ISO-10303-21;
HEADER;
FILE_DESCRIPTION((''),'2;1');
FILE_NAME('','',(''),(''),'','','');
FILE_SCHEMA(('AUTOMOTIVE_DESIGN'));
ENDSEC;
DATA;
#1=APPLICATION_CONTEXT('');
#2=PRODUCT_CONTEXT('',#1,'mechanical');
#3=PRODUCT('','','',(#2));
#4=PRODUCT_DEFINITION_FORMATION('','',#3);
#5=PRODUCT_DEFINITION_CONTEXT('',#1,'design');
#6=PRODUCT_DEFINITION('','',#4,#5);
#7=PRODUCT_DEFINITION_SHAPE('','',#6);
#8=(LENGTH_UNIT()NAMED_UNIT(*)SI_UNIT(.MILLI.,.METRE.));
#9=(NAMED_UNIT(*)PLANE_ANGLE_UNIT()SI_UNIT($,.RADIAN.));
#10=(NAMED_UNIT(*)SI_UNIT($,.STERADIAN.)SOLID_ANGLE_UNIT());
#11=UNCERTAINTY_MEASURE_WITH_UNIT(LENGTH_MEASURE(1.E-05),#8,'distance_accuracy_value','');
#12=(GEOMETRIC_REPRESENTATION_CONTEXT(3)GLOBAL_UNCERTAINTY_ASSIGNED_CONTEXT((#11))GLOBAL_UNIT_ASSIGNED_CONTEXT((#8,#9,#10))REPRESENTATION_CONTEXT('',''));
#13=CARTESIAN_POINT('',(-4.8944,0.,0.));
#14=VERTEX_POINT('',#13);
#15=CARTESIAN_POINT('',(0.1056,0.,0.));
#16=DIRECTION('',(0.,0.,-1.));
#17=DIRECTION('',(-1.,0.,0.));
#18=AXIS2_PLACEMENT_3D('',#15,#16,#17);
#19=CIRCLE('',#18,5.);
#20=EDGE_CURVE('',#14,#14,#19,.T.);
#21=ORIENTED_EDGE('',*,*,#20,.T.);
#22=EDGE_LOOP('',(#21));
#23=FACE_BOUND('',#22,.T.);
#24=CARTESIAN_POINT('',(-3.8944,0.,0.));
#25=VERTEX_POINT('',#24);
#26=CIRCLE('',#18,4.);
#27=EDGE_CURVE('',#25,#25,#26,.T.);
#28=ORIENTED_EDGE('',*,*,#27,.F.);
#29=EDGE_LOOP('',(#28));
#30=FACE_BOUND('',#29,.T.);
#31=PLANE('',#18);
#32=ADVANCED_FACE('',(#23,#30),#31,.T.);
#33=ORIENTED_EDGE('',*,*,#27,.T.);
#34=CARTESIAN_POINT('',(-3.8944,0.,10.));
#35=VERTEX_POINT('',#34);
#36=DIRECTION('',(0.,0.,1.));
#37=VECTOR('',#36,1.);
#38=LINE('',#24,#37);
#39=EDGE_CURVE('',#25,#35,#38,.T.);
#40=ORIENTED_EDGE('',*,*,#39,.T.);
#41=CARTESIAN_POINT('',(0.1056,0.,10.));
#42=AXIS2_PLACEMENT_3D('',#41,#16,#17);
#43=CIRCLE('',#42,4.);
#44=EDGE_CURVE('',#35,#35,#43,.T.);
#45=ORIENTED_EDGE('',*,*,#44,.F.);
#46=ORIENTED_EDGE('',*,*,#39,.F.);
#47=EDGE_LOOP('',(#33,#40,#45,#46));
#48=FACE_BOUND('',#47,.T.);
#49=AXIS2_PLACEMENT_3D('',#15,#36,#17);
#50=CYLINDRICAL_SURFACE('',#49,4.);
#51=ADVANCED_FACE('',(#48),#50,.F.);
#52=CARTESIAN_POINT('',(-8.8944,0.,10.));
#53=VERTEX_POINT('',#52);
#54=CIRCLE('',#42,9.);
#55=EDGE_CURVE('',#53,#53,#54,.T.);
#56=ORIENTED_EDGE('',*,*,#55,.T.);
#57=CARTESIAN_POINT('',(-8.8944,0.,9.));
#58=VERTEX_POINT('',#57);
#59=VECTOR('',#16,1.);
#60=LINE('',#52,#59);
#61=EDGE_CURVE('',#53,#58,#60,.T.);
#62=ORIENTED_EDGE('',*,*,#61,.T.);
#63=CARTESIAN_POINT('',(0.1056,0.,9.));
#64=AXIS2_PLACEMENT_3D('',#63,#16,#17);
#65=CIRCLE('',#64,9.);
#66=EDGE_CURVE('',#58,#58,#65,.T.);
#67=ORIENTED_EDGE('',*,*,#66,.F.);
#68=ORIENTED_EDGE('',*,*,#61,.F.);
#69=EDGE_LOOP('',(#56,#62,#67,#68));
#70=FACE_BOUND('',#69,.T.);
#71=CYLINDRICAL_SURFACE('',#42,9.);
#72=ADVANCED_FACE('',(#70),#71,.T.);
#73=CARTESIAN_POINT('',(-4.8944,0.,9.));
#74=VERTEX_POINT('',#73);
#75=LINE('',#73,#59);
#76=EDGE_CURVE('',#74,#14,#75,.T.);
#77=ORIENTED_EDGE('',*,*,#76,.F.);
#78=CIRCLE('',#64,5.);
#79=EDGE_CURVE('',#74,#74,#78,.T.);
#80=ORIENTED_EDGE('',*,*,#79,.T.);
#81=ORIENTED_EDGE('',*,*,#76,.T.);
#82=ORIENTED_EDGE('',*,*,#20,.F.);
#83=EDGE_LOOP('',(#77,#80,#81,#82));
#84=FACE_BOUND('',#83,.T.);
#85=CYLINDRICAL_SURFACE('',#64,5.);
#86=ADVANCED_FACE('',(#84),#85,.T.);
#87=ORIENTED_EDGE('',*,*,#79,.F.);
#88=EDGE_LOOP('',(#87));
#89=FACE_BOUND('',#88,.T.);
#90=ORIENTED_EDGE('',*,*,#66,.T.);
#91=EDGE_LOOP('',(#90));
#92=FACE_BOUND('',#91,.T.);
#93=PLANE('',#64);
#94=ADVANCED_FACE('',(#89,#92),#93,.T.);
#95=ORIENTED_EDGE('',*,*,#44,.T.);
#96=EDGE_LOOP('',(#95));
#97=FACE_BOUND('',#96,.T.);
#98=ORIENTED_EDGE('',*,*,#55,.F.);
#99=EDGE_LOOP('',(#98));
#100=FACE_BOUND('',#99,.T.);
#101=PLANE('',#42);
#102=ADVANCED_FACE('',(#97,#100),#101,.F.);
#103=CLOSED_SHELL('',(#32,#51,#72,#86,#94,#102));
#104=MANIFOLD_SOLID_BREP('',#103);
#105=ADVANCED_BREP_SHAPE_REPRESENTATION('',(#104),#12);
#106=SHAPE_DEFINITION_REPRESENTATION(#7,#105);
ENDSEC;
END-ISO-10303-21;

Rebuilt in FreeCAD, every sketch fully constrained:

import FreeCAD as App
import Part
import Sketcher
from FreeCAD import Vector

doc = App.newDocument("Part")
params = doc.addObject("Spreadsheet::Sheet", "Params")
for row, (alias, value) in enumerate([
    ("sketch1_width", "1 mm"),
    ("sketch1_width2", "5 mm"),
    ("sketch1_height", "10 mm"),
    ("revolution_angle", "360 deg"),
], start=1):
    params.set(f"A{row}", alias)
    params.set(f"B{row}", "=" + value)
    params.setAlias(f"B{row}", alias)

body = doc.addObject("PartDesign::Body", "Body")

sketch1 = body.newObject("Sketcher::SketchObject", "Sketch")
sketch1.AttachmentSupport = (doc.getObject("XZ_Plane"), [""])
sketch1.MapMode = "FlatFace"
sketch1.addGeometry([
    Part.LineSegment(Vector(-4.8944, 0, 0), Vector(-3.8944, 0, 0)),
    Part.LineSegment(Vector(-3.8944, 0, 0), Vector(-3.8944, 10, 0)),
    Part.LineSegment(Vector(-3.8944, 10, 0), Vector(-8.8944, 10, 0)),
    Part.LineSegment(Vector(-8.8944, 10, 0), Vector(-8.8944, 9, 0)),
    Part.LineSegment(Vector(-8.8944, 9, 0), Vector(-4.8944, 9, 0)),
    Part.LineSegment(Vector(-4.8944, 9, 0), Vector(-4.8944, 0, 0)),
], False)
sketch1.addGeometry(Part.LineSegment(Vector(0.1056, 10, 0), Vector(0.1056, 0, 0)), True)
sketch1.addConstraint([
    Sketcher.Constraint("Coincident", 0, 2, 1, 1),
    Sketcher.Constraint("Coincident", 1, 2, 2, 1),
    Sketcher.Constraint("Coincident", 2, 2, 3, 1),
    Sketcher.Constraint("Coincident", 3, 2, 4, 1),
    Sketcher.Constraint("Coincident", 4, 2, 5, 1),
    Sketcher.Constraint("Coincident", 5, 2, 0, 1),
    Sketcher.Constraint("Horizontal", 0),
    Sketcher.Constraint("Vertical", 1),
    Sketcher.Constraint("Horizontal", 2),
    Sketcher.Constraint("Vertical", 3),
    Sketcher.Constraint("Horizontal", 4),
    Sketcher.Constraint("Vertical", 5),
    Sketcher.Constraint("Vertical", 6),
    Sketcher.Constraint("PointOnObject", 0, 2, -1),
    Sketcher.Constraint("PointOnObject", 6, 2, -1),
    Sketcher.Constraint("Horizontal", 2, 2, 6, 1),
    Sketcher.Constraint("Equal", 0, 3),
    Sketcher.Constraint("DistanceX", 0, 1, 0, 2, 1.0),
    Sketcher.Constraint("DistanceX", 2, 2, 2, 1, 5.0),
    Sketcher.Constraint("DistanceY", 1, 1, 1, 2, 10.0),
    Sketcher.Constraint("DistanceX", 1, 2, 6, 1, 4.0),
    Sketcher.Constraint("DistanceX", 0, 2, -1, 1, 3.8944),
])
sketch1.setExpression("Constraints[17]", "Params.sketch1_width")
sketch1.setExpression("Constraints[18]", "Params.sketch1_width2")
sketch1.setExpression("Constraints[19]", "Params.sketch1_height")
revolution = body.newObject("PartDesign::Revolution", "Revolution")
revolution.Profile = sketch1
revolution.ReferenceAxis = (sketch1, ["Axis0"])
revolution.setExpression("Angle", "Params.revolution_angle")

doc.recompute()
